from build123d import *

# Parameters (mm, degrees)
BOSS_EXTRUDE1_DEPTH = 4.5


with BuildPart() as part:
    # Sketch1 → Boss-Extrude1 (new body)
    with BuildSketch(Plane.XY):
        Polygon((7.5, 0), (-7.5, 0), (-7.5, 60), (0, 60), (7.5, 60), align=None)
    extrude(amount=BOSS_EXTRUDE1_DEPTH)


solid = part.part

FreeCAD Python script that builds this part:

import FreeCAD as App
import Part
import Sketcher
from FreeCAD import Vector


def add_polygon(sketch, points):
    """Adds a closed chain of lines whose ends are joined by coincident constraints."""
    first, n = sketch.GeometryCount, len(points)
    for a, b in zip(points, points[1:] + points[:1]):
        sketch.addGeometry(Part.LineSegment(App.Vector(*a, 0), App.Vector(*b, 0)), False)
    for i in range(n):
        sketch.addConstraint(Sketcher.Constraint("Coincident", first + i, 2, first + (i + 1) % n, 1))

doc = App.newDocument("Part")
body = doc.addObject("PartDesign::Body", "Body")

# Sketch on XY plane
sketch1 = body.newObject("Sketcher::SketchObject", "Sketch")
sketch1.AttachmentSupport = (doc.getObject("XY_Plane"), [""])
sketch1.MapMode = "FlatFace"
add_polygon(sketch1, [(-7.5, 0), (7.5, 0), (7.5, 60), (-7.5, 60)])  # lines 0-3
sketch1.addConstraint(Sketcher.Constraint("Horizontal", 0))
sketch1.addConstraint(Sketcher.Constraint("Vertical", 1))
sketch1.addConstraint(Sketcher.Constraint("Horizontal", 2))
sketch1.addConstraint(Sketcher.Constraint("Vertical", 3))
sketch1.addConstraint(Sketcher.Constraint("Symmetric", 0, 2, 3, 2, -1, 1))
sketch1.addConstraint(Sketcher.Constraint("DistanceX", 0, 1, 0, 2, 15.0))
sketch1.addConstraint(Sketcher.Constraint("DistanceY", 1, 1, 1, 2, 60.0))
pad1 = body.newObject("PartDesign::Pad", "Pad")
pad1.Profile = sketch1
pad1.Length = 4.5

doc.recompute()
